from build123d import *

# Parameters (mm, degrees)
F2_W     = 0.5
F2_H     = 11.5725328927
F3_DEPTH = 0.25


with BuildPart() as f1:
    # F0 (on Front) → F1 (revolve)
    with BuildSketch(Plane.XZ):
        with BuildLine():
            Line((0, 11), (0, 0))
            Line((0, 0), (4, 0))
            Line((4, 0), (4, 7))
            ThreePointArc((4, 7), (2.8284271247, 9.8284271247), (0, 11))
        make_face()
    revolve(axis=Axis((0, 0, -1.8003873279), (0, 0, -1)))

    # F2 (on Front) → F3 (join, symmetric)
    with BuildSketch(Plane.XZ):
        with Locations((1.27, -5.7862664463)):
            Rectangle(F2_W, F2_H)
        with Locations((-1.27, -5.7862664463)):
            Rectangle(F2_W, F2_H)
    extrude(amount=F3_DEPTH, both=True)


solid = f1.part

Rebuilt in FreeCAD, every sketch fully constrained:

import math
import FreeCAD as App
import Part
import Sketcher
from FreeCAD import Vector


def add_polygon(sketch, points):
    """Adds a closed chain of lines whose ends are joined by coincident constraints."""
    first, n = sketch.GeometryCount, len(points)
    for a, b in zip(points, points[1:] + points[:1]):
        sketch.addGeometry(Part.LineSegment(App.Vector(*a, 0), App.Vector(*b, 0)), False)
    for i in range(n):
        sketch.addConstraint(Sketcher.Constraint("Coincident", first + i, 2, first + (i + 1) % n, 1))

doc = App.newDocument("Part")
params = doc.addObject("Spreadsheet::Sheet", "Params")
for row, (alias, value) in enumerate([
    ("sketch1_radius", "4 mm"),
    ("sketch1_height", "11 mm"),
    ("revolution_angle", "360 deg"),
    ("sketch2_width", "0.5 mm"),
    ("pad1_length", "0.5 mm"),
], start=1):
    params.set(f"A{row}", alias)
    params.set(f"B{row}", "=" + value)
    params.setAlias(f"B{row}", alias)

body = doc.addObject("PartDesign::Body", "Body")

# Sketch on XZ plane
sketch1 = doc.addObject("Sketcher::SketchObject", "Sketch")
body.addObject(sketch1)
sketch1.AttachmentSupport = (doc.XZ_Plane, [""])
sketch1.MapMode = "FlatFace"
sketch1.addGeometry([
    Part.LineSegment(Vector(0, 11, 0), Vector(0, 0, 0)),
    Part.LineSegment(Vector(0, 0, 0), Vector(4, 0, 0)),
    Part.LineSegment(Vector(4, 0, 0), Vector(4, 7, 0)),
    Part.ArcOfCircle(Part.Circle(Vector(0, 7, 0), Vector(0, 0, 1), 4), math.radians(0), math.radians(90)),
], False)
sketch1.addConstraint([
    Sketcher.Constraint("Coincident", 0, 2, 1, 1),
    Sketcher.Constraint("Coincident", 1, 2, 2, 1),
    Sketcher.Constraint("Tangent", 2, 2, 3, 1),
    Sketcher.Constraint("Coincident", 3, 2, 0, 1),
    Sketcher.Constraint("Vertical", 0),
    Sketcher.Constraint("Horizontal", 1),
    Sketcher.Constraint("Vertical", 2),
    Sketcher.Constraint("Coincident", 0, 2, -1, 1),
    Sketcher.Constraint("PointOnObject", 3, 3, -2),
    Sketcher.Constraint("Radius", 3, 4.0),
    Sketcher.Constraint("DistanceY", 0, 2, 0, 1, 11.0),
])
sketch1.setExpression("Constraints[9]", "Params.sketch1_radius")
sketch1.setExpression("Constraints[10]", "Params.sketch1_height")
revolution = doc.addObject("PartDesign::Revolution", "Revolution")
body.addObject(revolution)
revolution.Profile = sketch1
revolution.ReferenceAxis = (sketch1, ["V_Axis"])
revolution.setExpression("Angle", "Params.revolution_angle")

# Sketch on XZ plane
sketch2 = doc.addObject("Sketcher::SketchObject", "Sketch001")
body.addObject(sketch2)
sketch2.AttachmentSupport = (doc.XZ_Plane, [""])
sketch2.MapMode = "FlatFace"
add_polygon(sketch2, [(1, 0), (1, -11.6), (1.5, -11.6), (1.5, 0)])  # lines 0-3
add_polygon(sketch2, [(-1.5, 0), (-1.5, -11.6), (-1, -11.6), (-1, 0)])  # lines 4-7
sketch2.addConstraint([
    Sketcher.Constraint("Vertical", 0),
    Sketcher.Constraint("Horizontal", 1),
    Sketcher.Constraint("Vertical", 2),
    Sketcher.Constraint("Horizontal", 3),
    Sketcher.Constraint("Vertical", 4),
    Sketcher.Constraint("Horizontal", 5),
    Sketcher.Constraint("Vertical", 6),
    Sketcher.Constraint("Horizontal", 7),
    Sketcher.Constraint("Symmetric", 3, 2, 6, 2, -1, 1),
    Sketcher.Constraint("Symmetric", 1, 2, 4, 2, -2),
    Sketcher.Constraint("PointOnObject", 2, 2, -1),
    Sketcher.Constraint("DistanceX", 1, 1, 1, 2, 0.5),
    Sketcher.Constraint("DistanceX", -1, 1, 0, 2, 1.02),
    Sketcher.Constraint("DistanceY", 0, 2, 0, 1, 11.572533),
])
sketch2.setExpression("Constraints[19]", "Params.sketch2_width")
pad1 = doc.addObject("PartDesign::Pad", "Pad")
body.addObject(pad1)
pad1.Profile = sketch2
pad1.setExpression("Length", "Params.pad1_length")
pad1.Midplane = True

doc.recompute()
